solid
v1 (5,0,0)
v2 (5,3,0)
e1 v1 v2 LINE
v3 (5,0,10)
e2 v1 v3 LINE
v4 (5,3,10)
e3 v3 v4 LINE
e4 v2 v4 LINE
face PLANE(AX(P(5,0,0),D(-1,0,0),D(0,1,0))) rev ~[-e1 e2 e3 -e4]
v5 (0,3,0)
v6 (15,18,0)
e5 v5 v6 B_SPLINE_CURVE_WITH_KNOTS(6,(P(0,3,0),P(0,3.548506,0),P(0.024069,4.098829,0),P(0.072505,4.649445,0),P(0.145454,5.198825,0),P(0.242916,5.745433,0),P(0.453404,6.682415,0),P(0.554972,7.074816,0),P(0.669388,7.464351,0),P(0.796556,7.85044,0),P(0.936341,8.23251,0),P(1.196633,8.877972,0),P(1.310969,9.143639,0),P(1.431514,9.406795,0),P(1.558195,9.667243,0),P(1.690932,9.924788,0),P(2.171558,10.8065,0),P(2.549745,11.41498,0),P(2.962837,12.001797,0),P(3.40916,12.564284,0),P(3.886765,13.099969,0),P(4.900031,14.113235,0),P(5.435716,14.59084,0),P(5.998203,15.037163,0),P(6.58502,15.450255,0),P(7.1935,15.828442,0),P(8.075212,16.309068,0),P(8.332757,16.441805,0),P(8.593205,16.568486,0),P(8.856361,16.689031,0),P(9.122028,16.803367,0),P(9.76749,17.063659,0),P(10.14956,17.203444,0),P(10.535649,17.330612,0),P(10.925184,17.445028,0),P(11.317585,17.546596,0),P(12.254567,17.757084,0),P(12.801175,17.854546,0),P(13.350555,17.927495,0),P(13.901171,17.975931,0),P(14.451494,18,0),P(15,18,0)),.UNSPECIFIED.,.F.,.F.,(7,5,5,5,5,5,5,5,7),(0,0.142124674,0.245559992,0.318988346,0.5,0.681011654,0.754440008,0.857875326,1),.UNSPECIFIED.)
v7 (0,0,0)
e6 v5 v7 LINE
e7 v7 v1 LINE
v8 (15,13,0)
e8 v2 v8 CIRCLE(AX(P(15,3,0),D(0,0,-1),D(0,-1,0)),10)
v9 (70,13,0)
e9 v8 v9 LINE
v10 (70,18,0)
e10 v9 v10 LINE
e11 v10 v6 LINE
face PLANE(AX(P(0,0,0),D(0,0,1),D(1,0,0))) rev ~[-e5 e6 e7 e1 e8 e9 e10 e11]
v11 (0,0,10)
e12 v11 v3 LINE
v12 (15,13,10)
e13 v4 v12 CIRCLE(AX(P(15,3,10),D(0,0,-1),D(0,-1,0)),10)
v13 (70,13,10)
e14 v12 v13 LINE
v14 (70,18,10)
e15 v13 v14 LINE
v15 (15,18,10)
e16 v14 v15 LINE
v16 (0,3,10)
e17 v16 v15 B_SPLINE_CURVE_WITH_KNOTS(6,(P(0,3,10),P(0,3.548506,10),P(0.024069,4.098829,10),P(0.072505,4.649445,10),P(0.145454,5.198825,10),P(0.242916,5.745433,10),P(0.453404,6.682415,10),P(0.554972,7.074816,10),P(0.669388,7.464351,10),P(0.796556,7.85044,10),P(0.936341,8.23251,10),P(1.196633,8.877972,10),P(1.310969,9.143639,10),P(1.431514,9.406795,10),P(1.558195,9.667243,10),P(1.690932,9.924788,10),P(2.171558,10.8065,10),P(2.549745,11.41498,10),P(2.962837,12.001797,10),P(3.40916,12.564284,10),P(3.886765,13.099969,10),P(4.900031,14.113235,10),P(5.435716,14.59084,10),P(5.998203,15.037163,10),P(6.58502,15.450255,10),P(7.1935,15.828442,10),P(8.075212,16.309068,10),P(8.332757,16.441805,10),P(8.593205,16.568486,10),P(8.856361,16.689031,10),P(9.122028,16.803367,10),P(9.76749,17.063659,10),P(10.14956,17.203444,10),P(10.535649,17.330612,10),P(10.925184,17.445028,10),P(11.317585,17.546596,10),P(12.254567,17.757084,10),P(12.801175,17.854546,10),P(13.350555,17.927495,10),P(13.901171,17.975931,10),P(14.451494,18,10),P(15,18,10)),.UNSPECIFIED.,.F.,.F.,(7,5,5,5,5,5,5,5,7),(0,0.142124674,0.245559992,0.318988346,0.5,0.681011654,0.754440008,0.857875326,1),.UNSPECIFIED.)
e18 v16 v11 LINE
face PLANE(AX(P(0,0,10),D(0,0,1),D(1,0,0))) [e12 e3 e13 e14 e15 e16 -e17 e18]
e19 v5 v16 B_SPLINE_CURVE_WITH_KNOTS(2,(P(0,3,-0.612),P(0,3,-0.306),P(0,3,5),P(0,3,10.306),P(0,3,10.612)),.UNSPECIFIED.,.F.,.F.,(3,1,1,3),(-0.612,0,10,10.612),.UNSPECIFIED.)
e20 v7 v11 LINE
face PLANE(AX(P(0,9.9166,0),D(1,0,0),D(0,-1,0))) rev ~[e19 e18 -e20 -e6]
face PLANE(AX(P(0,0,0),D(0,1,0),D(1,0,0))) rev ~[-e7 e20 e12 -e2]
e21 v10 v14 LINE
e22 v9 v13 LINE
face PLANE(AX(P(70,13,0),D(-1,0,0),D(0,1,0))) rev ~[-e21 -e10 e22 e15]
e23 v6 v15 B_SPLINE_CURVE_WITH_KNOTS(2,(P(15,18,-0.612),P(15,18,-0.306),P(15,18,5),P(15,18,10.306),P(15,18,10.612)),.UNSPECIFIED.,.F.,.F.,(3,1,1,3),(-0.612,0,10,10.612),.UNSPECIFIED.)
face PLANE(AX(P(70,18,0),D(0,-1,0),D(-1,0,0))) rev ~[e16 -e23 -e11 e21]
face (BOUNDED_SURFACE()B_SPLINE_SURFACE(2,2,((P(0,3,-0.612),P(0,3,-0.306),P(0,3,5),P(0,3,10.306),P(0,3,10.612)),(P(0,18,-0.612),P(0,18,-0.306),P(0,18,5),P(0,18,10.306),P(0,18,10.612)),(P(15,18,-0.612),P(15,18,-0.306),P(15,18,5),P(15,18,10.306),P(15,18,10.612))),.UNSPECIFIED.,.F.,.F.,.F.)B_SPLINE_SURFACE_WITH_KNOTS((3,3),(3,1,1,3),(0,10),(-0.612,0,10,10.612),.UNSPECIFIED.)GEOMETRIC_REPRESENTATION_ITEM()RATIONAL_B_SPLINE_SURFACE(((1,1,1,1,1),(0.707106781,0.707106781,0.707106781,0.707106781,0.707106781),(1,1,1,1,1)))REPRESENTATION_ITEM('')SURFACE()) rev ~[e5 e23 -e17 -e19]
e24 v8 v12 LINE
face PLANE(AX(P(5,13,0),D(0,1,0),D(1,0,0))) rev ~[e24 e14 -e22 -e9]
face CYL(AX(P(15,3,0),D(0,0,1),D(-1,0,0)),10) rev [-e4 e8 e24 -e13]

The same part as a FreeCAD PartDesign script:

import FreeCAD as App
import Part
import Sketcher

V = App.Vector
Q = App.Units.Quantity


def edges_at(feature, points):
    """Names of the edges that pass closest to the given points."""
    edges = feature.Shape.Edges
    near = lambda p: min(range(len(edges)), key=lambda i: edges[i].distToShape(Part.Vertex(*p))[0])
    return sorted({f"Edge{near(p) + 1}" for p in points})


def add_polygon(sketch, points):
    """Adds a closed chain of lines whose ends are joined by coincident constraints."""
    first, n = sketch.GeometryCount, len(points)
    for a, b in zip(points, points[1:] + points[:1]):
        sketch.addGeometry(Part.LineSegment(App.Vector(*a, 0), App.Vector(*b, 0)), False)
    for i in range(n):
        sketch.addConstraint(Sketcher.Constraint("Coincident", first + i, 2, first + (i + 1) % n, 1))

doc = App.newDocument("Part")
params = doc.addObject("Spreadsheet::Sheet", "Params")
for row, (alias, value) in enumerate([
    ("sketch1_width", "5 mm"),
    ("sketch1_width2", "65 mm"),
    ("sketch1_height", "13 mm"),
    ("pad1_length", "10 mm"),
    ("fillet_radius", "15 mm"),
    ("fillet2_radius", "10 mm"),
], start=1):
    params.set(f"A{row}", alias)
    params.set(f"B{row}", "=" + value)
    params.setAlias(f"B{row}", alias)

body = doc.addObject("PartDesign::Body", "Body")

sketch1 = doc.addObject("Sketcher::SketchObject", "Sketch")
body.addObject(sketch1)
sketch1.AttachmentSupport = (doc.XY_Plane, [""])
sketch1.MapMode = "FlatFace"
add_polygon(sketch1, [(0, 18), (0, 0), (5, 0), (5, 13), (70, 13), (70, 18)])
sketch1.addConstraint(Sketcher.Constraint("Vertical", 0))
sketch1.addConstraint(Sketcher.Constraint("Horizontal", 1))
sketch1.addConstraint(Sketcher.Constraint("Vertical", 2))
sketch1.addConstraint(Sketcher.Constraint("Horizontal", 3))
sketch1.addConstraint(Sketcher.Constraint("Vertical", 4))
sketch1.addConstraint(Sketcher.Constraint("Horizontal", 5))
sketch1.addConstraint(Sketcher.Constraint("Coincident", 0, 2, -1, 1))
sketch1.addConstraint(Sketcher.Constraint("Equal", 1, 4))
sketch1.addConstraint(Sketcher.Constraint("DistanceX", 1, 1, 1, 2, Q("5 mm")))
sketch1.addConstraint(Sketcher.Constraint("DistanceX", 3, 1, 3, 2, Q("65 mm")))
sketch1.addConstraint(Sketcher.Constraint("DistanceY", 2, 1, 2, 2, Q("13 mm")))
sketch1.setExpression("Constraints[14]", "Params.sketch1_width")
sketch1.setExpression("Constraints[15]", "Params.sketch1_width2")
sketch1.setExpression("Constraints[16]", "Params.sketch1_height")
pad1 = doc.addObject("PartDesign::Pad", "Pad")
body.addObject(pad1)
pad1.Profile = sketch1
pad1.setExpression("Length", "Params.pad1_length")
doc.recompute()

fillet = doc.addObject("PartDesign::Fillet", "Fillet")
body.addObject(fillet)
fillet.Base = (pad1, edges_at(pad1, [(0, 18, 5)]))
fillet.setExpression("Radius", "Params.fillet_radius")
doc.recompute()

fillet2 = doc.addObject("PartDesign::Fillet", "Fillet001")
body.addObject(fillet2)
fillet2.Base = (fillet, edges_at(fillet, [(5, 13, 5)]))
fillet2.setExpression("Radius", "Params.fillet2_radius")

doc.recompute()
